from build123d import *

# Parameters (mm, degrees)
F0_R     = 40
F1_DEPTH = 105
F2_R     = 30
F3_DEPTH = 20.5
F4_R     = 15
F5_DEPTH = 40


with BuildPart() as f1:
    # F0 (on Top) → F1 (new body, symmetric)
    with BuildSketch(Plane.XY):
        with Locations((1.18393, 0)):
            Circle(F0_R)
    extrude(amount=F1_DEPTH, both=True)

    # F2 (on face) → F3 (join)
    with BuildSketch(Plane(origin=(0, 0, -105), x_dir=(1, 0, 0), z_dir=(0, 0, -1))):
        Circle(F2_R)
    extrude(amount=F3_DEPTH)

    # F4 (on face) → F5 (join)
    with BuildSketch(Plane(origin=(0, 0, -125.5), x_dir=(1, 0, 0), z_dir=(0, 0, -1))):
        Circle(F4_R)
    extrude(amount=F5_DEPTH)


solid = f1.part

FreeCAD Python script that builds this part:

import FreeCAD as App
import Part
import Sketcher

doc = App.newDocument("Part")
body = doc.addObject("PartDesign::Body", "Body")

sketch1 = body.newObject("Sketcher::SketchObject", "Sketch")
sketch1.AttachmentSupport = (doc.getObject("XY_Plane"), [""])
sketch1.MapMode = "FlatFace"
sketch1.addGeometry(Part.Circle(App.Vector(1, 0, 0), App.Vector(0, 0, 1), 40), False)
sketch1.addConstraint([
    Sketcher.Constraint("PointOnObject", 0, 3, -1),
    Sketcher.Constraint("Diameter", 0, 80.0),
    Sketcher.Constraint("DistanceX", -1, 1, 0, 3, 1.18393),
])
pad1 = body.newObject("PartDesign::Pad", "Pad")
pad1.Profile = sketch1
pad1.Length = 210
pad1.Midplane = True

sketch2 = body.newObject("Sketcher::SketchObject", "Sketch001")
sketch2.AttachmentSupport = (doc.getObject("XY_Plane"), [""])
sketch2.MapMode = "FlatFace"
sketch2.AttachmentOffset = App.Placement(App.Vector(0, 0, -105), App.Rotation())
sketch2.addGeometry(Part.Circle(App.Vector(0, 0, 0), App.Vector(0, 0, 1), 30), False)
sketch2.addConstraint([
    Sketcher.Constraint("Coincident", 0, 3, -1, 1),
    Sketcher.Constraint("Diameter", 0, 60.0),
])
pad2 = body.newObject("PartDesign::Pad", "Pad001")
pad2.Profile = sketch2
pad2.Length = 20.5
pad2.Reversed = True

sketch3 = body.newObject("Sketcher::SketchObject", "Sketch002")
sketch3.AttachmentSupport = (doc.getObject("XY_Plane"), [""])
sketch3.MapMode = "FlatFace"
sketch3.AttachmentOffset = App.Placement(App.Vector(0, 0, -125.5), App.Rotation())
sketch3.addGeometry(Part.Circle(App.Vector(0, 0, 0), App.Vector(0, 0, 1), 15), False)
sketch3.addConstraint([
    Sketcher.Constraint("Coincident", 0, 3, -1, 1),
    Sketcher.Constraint("Diameter", 0, 30.0),
])
pad3 = body.newObject("PartDesign::Pad", "Pad002")
pad3.Profile = sketch3
pad3.Length = 40
pad3.Reversed = True

doc.recompute()
